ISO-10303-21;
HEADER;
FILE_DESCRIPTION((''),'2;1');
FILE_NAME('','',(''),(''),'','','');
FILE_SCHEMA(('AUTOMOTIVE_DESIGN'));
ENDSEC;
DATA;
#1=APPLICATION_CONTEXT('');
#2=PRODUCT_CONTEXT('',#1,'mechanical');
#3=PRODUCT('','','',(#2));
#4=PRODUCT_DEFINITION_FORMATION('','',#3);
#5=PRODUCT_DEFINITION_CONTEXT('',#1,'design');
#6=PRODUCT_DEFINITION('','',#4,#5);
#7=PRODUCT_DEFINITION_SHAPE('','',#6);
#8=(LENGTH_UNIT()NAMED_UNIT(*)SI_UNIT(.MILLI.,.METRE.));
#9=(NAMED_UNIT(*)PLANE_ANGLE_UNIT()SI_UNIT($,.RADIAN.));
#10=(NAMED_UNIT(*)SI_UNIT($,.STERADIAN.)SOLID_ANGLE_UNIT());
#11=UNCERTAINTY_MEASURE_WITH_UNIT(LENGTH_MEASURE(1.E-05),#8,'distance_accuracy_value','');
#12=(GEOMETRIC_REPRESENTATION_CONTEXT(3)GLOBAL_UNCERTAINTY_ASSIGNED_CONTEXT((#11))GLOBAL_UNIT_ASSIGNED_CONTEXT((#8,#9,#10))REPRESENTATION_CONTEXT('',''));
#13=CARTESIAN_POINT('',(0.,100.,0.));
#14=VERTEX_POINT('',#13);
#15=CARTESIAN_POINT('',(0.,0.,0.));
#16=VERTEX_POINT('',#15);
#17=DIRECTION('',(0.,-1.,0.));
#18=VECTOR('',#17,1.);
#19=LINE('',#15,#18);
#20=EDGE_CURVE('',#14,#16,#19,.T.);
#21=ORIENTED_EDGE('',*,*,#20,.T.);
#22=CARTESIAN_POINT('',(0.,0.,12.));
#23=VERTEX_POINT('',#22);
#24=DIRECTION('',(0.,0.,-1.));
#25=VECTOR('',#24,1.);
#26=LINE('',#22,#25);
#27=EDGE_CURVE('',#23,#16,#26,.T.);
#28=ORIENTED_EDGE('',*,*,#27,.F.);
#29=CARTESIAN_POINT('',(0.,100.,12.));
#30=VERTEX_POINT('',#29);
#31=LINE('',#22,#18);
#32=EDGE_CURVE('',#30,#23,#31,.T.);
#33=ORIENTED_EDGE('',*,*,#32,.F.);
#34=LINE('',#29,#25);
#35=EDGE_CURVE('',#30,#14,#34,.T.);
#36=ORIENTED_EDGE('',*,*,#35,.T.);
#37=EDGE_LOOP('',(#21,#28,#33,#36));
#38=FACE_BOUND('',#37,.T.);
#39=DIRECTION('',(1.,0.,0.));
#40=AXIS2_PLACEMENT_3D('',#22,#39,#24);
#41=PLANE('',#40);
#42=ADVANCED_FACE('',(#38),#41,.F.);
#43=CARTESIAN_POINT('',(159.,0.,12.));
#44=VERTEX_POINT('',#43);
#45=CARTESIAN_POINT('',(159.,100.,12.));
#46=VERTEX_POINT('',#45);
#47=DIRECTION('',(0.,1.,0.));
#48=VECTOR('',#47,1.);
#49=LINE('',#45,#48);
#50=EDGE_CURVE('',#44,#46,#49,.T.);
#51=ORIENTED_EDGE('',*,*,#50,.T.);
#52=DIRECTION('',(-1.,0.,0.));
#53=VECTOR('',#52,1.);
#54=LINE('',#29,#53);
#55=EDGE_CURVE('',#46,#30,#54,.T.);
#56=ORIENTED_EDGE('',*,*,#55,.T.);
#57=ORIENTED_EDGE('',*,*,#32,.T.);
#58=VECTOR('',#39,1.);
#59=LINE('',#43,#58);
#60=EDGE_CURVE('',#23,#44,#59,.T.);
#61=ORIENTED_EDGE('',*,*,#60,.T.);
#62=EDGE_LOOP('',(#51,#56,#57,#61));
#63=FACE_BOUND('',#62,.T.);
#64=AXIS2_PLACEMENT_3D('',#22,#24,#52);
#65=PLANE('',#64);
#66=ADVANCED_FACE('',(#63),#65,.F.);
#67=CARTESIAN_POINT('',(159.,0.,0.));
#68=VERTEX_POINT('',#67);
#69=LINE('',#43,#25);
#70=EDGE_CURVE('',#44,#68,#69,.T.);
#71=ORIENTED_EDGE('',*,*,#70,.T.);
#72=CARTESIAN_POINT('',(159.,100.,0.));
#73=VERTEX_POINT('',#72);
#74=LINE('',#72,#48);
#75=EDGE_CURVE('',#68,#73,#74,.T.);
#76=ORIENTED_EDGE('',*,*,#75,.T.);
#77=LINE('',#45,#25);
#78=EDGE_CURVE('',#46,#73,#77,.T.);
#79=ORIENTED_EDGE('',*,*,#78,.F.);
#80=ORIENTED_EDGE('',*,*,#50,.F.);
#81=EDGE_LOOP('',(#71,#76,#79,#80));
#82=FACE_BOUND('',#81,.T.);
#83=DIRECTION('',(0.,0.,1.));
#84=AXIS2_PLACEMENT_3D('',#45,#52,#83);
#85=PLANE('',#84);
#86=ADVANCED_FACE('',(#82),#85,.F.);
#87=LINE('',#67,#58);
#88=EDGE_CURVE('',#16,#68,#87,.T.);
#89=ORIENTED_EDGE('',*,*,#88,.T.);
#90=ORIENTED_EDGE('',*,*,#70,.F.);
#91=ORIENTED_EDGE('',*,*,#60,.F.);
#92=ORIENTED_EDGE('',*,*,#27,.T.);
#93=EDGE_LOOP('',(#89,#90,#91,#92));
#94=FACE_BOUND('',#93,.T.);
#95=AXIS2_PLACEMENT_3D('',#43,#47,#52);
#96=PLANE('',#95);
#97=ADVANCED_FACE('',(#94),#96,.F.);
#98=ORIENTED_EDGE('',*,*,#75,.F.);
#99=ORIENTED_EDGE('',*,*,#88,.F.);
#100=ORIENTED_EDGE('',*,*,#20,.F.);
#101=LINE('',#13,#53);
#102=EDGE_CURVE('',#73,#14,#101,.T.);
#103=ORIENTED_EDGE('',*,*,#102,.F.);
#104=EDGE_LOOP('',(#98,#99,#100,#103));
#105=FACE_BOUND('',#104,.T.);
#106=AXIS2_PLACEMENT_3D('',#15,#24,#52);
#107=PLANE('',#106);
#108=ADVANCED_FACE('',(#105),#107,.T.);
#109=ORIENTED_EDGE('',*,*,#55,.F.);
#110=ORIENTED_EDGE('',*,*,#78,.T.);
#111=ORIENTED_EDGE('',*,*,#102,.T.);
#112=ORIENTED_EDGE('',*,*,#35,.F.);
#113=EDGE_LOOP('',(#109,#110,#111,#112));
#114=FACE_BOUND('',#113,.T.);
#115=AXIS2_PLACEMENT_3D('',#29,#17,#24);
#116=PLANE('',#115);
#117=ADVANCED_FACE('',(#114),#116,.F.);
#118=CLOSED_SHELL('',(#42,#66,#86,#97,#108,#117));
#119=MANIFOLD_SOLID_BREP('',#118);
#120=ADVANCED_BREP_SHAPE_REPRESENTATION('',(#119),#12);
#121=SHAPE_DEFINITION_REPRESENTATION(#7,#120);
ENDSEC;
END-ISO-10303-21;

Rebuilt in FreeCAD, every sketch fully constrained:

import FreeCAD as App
import Part
import Sketcher

V = App.Vector
Q = App.Units.Quantity

doc = App.newDocument("Part")
body = doc.addObject("PartDesign::Body", "Body")

# Sketch on XY plane
sketch1 = doc.addObject("Sketcher::SketchObject", "Sketch")
body.addObject(sketch1)
sketch1.AttachmentSupport = (doc.XY_Plane, [""])
sketch1.MapMode = "FlatFace"
sketch1.addGeometry([
    Part.LineSegment(V(0, 100, 0), V(0, 0, 0)),
    Part.LineSegment(V(0, 0, 0), V(159, 0, 0)),
    Part.LineSegment(V(159, 0, 0), V(159, 100, 0)),
    Part.LineSegment(V(159, 100, 0), V(0, 100, 0)),
], False)
sketch1.addConstraint([
    Sketcher.Constraint("Coincident", 0, 2, 1, 1),
    Sketcher.Constraint("Coincident", 1, 2, 2, 1),
    Sketcher.Constraint("Coincident", 2, 2, 3, 1),
    Sketcher.Constraint("Coincident", 3, 2, 0, 1),
    Sketcher.Constraint("Vertical", 0),
    Sketcher.Constraint("Horizontal", 1),
    Sketcher.Constraint("Vertical", 2),
    Sketcher.Constraint("Horizontal", 3),
    Sketcher.Constraint("Coincident", 0, 2, -1, 1),
    Sketcher.Constraint("DistanceX", 1, 1, 1, 2, Q("159 mm")),
    Sketcher.Constraint("DistanceY", 0, 2, 0, 1, Q("100 mm")),
])
pad1 = doc.addObject("PartDesign::Pad", "Pad")
body.addObject(pad1)
pad1.Profile = sketch1
pad1.Length = 12

doc.recompute()
